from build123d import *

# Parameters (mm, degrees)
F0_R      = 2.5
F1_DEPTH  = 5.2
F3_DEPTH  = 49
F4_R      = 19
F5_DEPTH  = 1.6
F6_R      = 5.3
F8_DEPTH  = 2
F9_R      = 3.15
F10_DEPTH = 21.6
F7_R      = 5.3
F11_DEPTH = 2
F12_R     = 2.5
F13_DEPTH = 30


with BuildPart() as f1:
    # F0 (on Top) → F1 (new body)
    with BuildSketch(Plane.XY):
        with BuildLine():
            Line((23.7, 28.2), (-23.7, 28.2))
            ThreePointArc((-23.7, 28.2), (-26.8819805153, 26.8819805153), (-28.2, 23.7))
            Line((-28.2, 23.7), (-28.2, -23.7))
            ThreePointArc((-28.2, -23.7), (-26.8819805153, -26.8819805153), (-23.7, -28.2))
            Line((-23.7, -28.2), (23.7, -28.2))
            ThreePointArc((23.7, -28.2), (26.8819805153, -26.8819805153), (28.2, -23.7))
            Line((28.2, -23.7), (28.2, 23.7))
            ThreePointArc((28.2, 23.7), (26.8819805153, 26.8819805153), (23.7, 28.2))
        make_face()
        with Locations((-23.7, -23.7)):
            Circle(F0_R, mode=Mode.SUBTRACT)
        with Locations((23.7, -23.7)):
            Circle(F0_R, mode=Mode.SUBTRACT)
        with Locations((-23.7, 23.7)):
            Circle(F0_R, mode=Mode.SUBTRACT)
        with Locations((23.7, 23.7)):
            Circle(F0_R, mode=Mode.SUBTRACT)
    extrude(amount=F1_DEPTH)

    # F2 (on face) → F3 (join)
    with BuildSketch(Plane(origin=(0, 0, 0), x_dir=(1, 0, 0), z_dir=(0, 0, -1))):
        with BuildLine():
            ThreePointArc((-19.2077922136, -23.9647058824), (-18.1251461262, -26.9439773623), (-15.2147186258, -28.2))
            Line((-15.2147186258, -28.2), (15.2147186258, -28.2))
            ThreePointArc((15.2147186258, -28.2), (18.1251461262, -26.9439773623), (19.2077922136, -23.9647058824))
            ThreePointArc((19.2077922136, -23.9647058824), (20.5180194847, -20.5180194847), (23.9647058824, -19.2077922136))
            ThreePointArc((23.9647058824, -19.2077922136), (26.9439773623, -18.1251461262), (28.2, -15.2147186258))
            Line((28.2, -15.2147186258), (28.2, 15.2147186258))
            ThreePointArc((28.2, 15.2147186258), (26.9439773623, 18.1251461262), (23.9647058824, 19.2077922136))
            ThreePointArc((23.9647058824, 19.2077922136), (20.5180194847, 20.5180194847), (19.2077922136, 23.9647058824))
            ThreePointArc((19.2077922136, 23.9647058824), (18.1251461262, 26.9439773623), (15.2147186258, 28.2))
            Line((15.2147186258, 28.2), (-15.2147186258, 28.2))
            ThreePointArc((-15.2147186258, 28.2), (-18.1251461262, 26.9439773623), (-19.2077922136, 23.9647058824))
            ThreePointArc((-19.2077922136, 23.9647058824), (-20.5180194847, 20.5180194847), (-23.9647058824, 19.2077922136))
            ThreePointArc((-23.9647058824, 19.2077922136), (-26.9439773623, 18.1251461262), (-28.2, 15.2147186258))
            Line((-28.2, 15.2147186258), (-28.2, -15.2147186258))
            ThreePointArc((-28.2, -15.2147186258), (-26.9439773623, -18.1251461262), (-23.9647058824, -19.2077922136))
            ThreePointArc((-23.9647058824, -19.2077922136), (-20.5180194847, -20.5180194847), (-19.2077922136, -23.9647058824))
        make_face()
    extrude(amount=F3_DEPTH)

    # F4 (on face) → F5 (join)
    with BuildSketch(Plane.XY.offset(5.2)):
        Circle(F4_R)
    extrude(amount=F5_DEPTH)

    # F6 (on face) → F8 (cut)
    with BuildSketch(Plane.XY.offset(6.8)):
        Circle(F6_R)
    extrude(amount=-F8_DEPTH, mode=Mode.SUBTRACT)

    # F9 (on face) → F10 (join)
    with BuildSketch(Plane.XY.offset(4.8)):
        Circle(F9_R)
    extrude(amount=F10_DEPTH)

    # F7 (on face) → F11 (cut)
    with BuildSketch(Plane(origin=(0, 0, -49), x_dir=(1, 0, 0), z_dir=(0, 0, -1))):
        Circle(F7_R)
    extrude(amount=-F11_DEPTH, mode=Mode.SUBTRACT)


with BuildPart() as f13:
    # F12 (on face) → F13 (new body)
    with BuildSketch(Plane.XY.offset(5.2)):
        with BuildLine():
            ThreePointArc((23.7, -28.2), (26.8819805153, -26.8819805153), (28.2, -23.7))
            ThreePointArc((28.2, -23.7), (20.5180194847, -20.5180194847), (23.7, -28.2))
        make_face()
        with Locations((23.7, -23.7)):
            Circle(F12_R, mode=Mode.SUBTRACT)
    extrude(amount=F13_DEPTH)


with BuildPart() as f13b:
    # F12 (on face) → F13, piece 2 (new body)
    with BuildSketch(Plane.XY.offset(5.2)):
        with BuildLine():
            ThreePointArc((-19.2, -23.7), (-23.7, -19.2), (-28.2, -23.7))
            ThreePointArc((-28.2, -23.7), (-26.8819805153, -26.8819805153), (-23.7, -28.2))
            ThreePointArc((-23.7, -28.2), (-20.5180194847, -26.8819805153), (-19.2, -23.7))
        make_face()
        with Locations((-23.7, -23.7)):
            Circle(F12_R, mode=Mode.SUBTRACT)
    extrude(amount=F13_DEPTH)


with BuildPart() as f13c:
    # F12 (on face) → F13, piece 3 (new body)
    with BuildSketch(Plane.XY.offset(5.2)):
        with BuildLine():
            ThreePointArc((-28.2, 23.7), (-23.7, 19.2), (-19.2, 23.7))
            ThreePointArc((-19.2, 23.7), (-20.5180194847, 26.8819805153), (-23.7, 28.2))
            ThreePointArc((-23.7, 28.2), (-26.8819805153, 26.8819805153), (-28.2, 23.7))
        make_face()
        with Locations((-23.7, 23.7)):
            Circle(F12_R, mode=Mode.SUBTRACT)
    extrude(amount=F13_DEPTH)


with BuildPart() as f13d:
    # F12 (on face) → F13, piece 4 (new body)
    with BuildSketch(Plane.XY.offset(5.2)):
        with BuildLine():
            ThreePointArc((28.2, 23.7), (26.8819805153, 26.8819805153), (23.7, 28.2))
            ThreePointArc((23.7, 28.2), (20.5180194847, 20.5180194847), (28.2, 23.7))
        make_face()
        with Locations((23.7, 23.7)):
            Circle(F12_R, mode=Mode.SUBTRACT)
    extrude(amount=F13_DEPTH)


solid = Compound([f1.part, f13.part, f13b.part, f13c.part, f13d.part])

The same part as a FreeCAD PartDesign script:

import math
import FreeCAD as App
import Part
import Sketcher
Q = App.Units.Quantity

doc = App.newDocument("Part")
body = doc.addObject("PartDesign::Body", "Body")

# Sketch on XY plane
sketch1 = body.newObject("Sketcher::SketchObject", "Sketch")
sketch1.AttachmentSupport = (doc.getObject("XY_Plane"), [""])
sketch1.MapMode = "FlatFace"
sketch1.addGeometry([
    Part.LineSegment(App.Vector(23.7, 28.2, 0), App.Vector(-23.7, 28.2, 0)),  # 0
    Part.ArcOfCircle(Part.Circle(App.Vector(-23.7, 23.7, 0), App.Vector(0, 0, 1), 4.5), math.radians(90), math.radians(180)),  # 1
    Part.LineSegment(App.Vector(-28.2, 23.7, 0), App.Vector(-28.2, -23.7, 0)),  # 2
    Part.ArcOfCircle(Part.Circle(App.Vector(-23.7, -23.7, 0), App.Vector(0, 0, 1), 4.5), math.radians(180), math.radians(270)),  # 3
    Part.LineSegment(App.Vector(-23.7, -28.2, 0), App.Vector(23.7, -28.2, 0)),  # 4
    Part.ArcOfCircle(Part.Circle(App.Vector(23.7, -23.7, 0), App.Vector(0, 0, 1), 4.5), math.radians(-90), math.radians(0)),  # 5
    Part.LineSegment(App.Vector(28.2, -23.7, 0), App.Vector(28.2, 23.7, 0)),  # 6
    Part.ArcOfCircle(Part.Circle(App.Vector(23.7, 23.7, 0), App.Vector(0, 0, 1), 4.5), math.radians(0), math.radians(90)),  # 7
    Part.Circle(App.Vector(-23.7, -23.7, 0), App.Vector(0, 0, 1), 2.5),  # 8
    Part.Circle(App.Vector(23.7, -23.7, 0), App.Vector(0, 0, 1), 2.5),  # 9
    Part.Circle(App.Vector(-23.7, 23.7, 0), App.Vector(0, 0, 1), 2.5),  # 10
    Part.Circle(App.Vector(23.7, 23.7, 0), App.Vector(0, 0, 1), 2.5),  # 11
], False)
sketch1.addConstraint([
    Sketcher.Constraint("Tangent", 0, 2, 1, 1),
    Sketcher.Constraint("Tangent", 1, 2, 2, 1),
    Sketcher.Constraint("Tangent", 2, 2, 3, 1),
    Sketcher.Constraint("Tangent", 3, 2, 4, 1),
    Sketcher.Constraint("Tangent", 4, 2, 5, 1),
    Sketcher.Constraint("Tangent", 5, 2, 6, 1),
    Sketcher.Constraint("Tangent", 6, 2, 7, 1),
    Sketcher.Constraint("Tangent", 7, 2, 0, 1),
    Sketcher.Constraint("Horizontal", 0),
    Sketcher.Constraint("Vertical", 2),
    Sketcher.Constraint("Horizontal", 4),
    Sketcher.Constraint("Vertical", 6),
    Sketcher.Constraint("Coincident", 8, 3, 3, 3),
    Sketcher.Constraint("Coincident", 9, 3, 5, 3),
    Sketcher.Constraint("Coincident", 10, 3, 1, 3),
    Sketcher.Constraint("Coincident", 11, 3, 7, 3),
    Sketcher.Constraint("Equal", 1, 3),
    Sketcher.Constraint("Equal", 3, 5),
    Sketcher.Constraint("Equal", 5, 7),
    Sketcher.Constraint("Equal", 8, 9),
    Sketcher.Constraint("Equal", 9, 10),
    Sketcher.Constraint("Equal", 10, 11),
    Sketcher.Constraint("Symmetric", 1, 3, 5, 3, -1, 1),
    Sketcher.Constraint("Equal", 4, 2),
    Sketcher.Constraint("Diameter", 8, Q("5 mm")),
    Sketcher.Constraint("Radius", 1, Q("4.5 mm")),
    Sketcher.Constraint("DistanceX", 0, 2, 0, 1, Q("47.4 mm")),
])
pad1 = body.newObject("PartDesign::Pad", "Pad")
pad1.Profile = sketch1
pad1.Length = 5.2

# Sketch on XY plane
sketch2 = body.newObject("Sketcher::SketchObject", "Sketch001")
sketch2.AttachmentSupport = (doc.getObject("XY_Plane"), [""])
sketch2.MapMode = "FlatFace"
sketch2.addGeometry([
    Part.ArcOfCircle(Part.Circle(App.Vector(-15.214719, 24.2, 0), App.Vector(0, 0, 1), 4), math.radians(90), math.radians(183.372287)),  # 0
    Part.LineSegment(App.Vector(-15.214719, 28.2, 0), App.Vector(15.214719, 28.2, 0)),  # 1
    Part.ArcOfCircle(Part.Circle(App.Vector(15.214719, 24.2, 0), App.Vector(0, 0, 1), 4), math.radians(-3.372287), math.radians(90)),  # 2
    Part.ArcOfCircle(Part.Circle(App.Vector(23.7, 23.7, 0), App.Vector(0, 0, 1), 4.5), math.radians(176.627713), math.radians(273.372287)),  # 3
    Part.ArcOfCircle(Part.Circle(App.Vector(24.2, 15.214719, 0), App.Vector(0, 0, 1), 4), math.radians(0), math.radians(93.372287)),  # 4
    Part.LineSegment(App.Vector(28.2, 15.214719, 0), App.Vector(28.2, -15.214719, 0)),  # 5
    Part.ArcOfCircle(Part.Circle(App.Vector(24.2, -15.214719, 0), App.Vector(0, 0, 1), 4), math.radians(-93.372287), math.radians(0)),  # 6
    Part.ArcOfCircle(Part.Circle(App.Vector(23.7, -23.7, 0), App.Vector(0, 0, 1), 4.5), math.radians(86.627713), math.radians(183.372287)),  # 7
    Part.ArcOfCircle(Part.Circle(App.Vector(15.214719, -24.2, 0), App.Vector(0, 0, 1), 4), math.radians(-90), math.radians(3.372287)),  # 8
    Part.LineSegment(App.Vector(15.214719, -28.2, 0), App.Vector(-15.214719, -28.2, 0)),  # 9
    Part.ArcOfCircle(Part.Circle(App.Vector(-15.214719, -24.2, 0), App.Vector(0, 0, 1), 4), math.radians(176.627713), math.radians(270)),  # 10
    Part.ArcOfCircle(Part.Circle(App.Vector(-23.7, -23.7, 0), App.Vector(0, 0, 1), 4.5), math.radians(-3.372287), math.radians(93.372287)),  # 11
    Part.ArcOfCircle(Part.Circle(App.Vector(-24.2, -15.214719, 0), App.Vector(0, 0, 1), 4), math.radians(180), math.radians(273.372287)),  # 12
    Part.LineSegment(App.Vector(-28.2, -15.214719, 0), App.Vector(-28.2, 15.214719, 0)),  # 13
    Part.ArcOfCircle(Part.Circle(App.Vector(-24.2, 15.214719, 0), App.Vector(0, 0, 1), 4), math.radians(86.627713), math.radians(180)),  # 14
    Part.ArcOfCircle(Part.Circle(App.Vector(-23.7, 23.7, 0), App.Vector(0, 0, 1), 4.5), math.radians(-93.372287), math.radians(3.372287)),  # 15
], False)
sketch2.addConstraint([
    Sketcher.Constraint("Tangent", 0, 1, 1, 1),
    Sketcher.Constraint("Tangent", 1, 2, 2, 2),
    Sketcher.Constraint("Tangent", 2, 1, 3, 1),
    Sketcher.Constraint("Tangent", 3, 2, 4, 2),
    Sketcher.Constraint("Tangent", 4, 1, 5, 1),
    Sketcher.Constraint("Tangent", 5, 2, 6, 2),
    Sketcher.Constraint("Tangent", 6, 1, 7, 1),
    Sketcher.Constraint("Tangent", 7, 2, 8, 2),
    Sketcher.Constraint("Tangent", 8, 1, 9, 1),
    Sketcher.Constraint("Tangent", 9, 2, 10, 2),
    Sketcher.Constraint("Tangent", 10, 1, 11, 1),
    Sketcher.Constraint("Tangent", 11, 2, 12, 2),
    Sketcher.Constraint("Tangent", 12, 1, 13, 1),
    Sketcher.Constraint("Tangent", 13, 2, 14, 2),
    Sketcher.Constraint("Tangent", 14, 1, 15, 1),
    Sketcher.Constraint("Tangent", 15, 2, 0, 2),
    Sketcher.Constraint("Horizontal", 1),
    Sketcher.Constraint("Vertical", 5),
    Sketcher.Constraint("Horizontal", 9),
    Sketcher.Constraint("Vertical", 13),
    Sketcher.Constraint("Equal", 0, 2),
    Sketcher.Constraint("Equal", 2, 4),
    Sketcher.Constraint("Equal", 4, 6),
    Sketcher.Constraint("Equal", 3, 7),
    Sketcher.Constraint("Equal", 6, 8),
    Sketcher.Constraint("Equal", 8, 10),
    Sketcher.Constraint("Equal", 7, 11),
    Sketcher.Constraint("Equal", 10, 12),
    Sketcher.Constraint("Equal", 12, 14),
    Sketcher.Constraint("Equal", 11, 15),
    Sketcher.Constraint("Symmetric", 0, 3, 8, 3, -1, 1),
    Sketcher.Constraint("Symmetric", 3, 3, 11, 3, -1, 1),
    Sketcher.Constraint("Symmetric", 6, 3, 14, 3, -1, 1),
    Sketcher.Constraint("Symmetric", 7, 3, 11, 3, -2),
    Sketcher.Constraint("Equal", 9, 5),
    Sketcher.Constraint("Radius", 0, Q("4 mm")),
    Sketcher.Constraint("Radius", 3, Q("4.5 mm")),
    Sketcher.Constraint("DistanceY", -1, 1, 0, 3, Q("24.2 mm")),
    Sketcher.Constraint("DistanceX", -1, 1, 3, 3, Q("23.7 mm")),
    Sketcher.Constraint("DistanceY", -1, 1, 3, 3, Q("23.7 mm")),
])
pad2 = body.newObject("PartDesign::Pad", "Pad001")
pad2.Profile = sketch2
pad2.Length = 49
pad2.Reversed = True

# Sketch on XY plane
sketch3 = body.newObject("Sketcher::SketchObject", "Sketch002")
sketch3.AttachmentSupport = (doc.getObject("XY_Plane"), [""])
sketch3.MapMode = "FlatFace"
sketch3.AttachmentOffset = App.Placement(App.Vector(0, 0, 5.2), App.Rotation())
sketch3.addGeometry(Part.Circle(App.Vector(0, 0, 0), App.Vector(0, 0, 1), 19), False)
sketch3.addConstraint([
    Sketcher.Constraint("Coincident", 0, 3, -1, 1),
    Sketcher.Constraint("Diameter", 0, Q("38 mm")),
])
pad3 = body.newObject("PartDesign::Pad", "Pad002")
pad3.Profile = sketch3
pad3.Length = 1.6

# Sketch on XY plane
sketch4 = body.newObject("Sketcher::SketchObject", "Sketch003")
sketch4.AttachmentSupport = (doc.getObject("XY_Plane"), [""])
sketch4.MapMode = "FlatFace"
sketch4.AttachmentOffset = App.Placement(App.Vector(0, 0, 6.8), App.Rotation())
sketch4.addGeometry(Part.Circle(App.Vector(0, 0, 0), App.Vector(0, 0, 1), 5.3), False)
sketch4.addConstraint([
    Sketcher.Constraint("Coincident", 0, 3, -1, 1),
    Sketcher.Constraint("Diameter", 0, Q("10.6 mm")),
])
pocket1 = body.newObject("PartDesign::Pocket", "Pocket")
pocket1.Profile = sketch4
pocket1.Length = 2

# Sketch on XY plane
sketch5 = body.newObject("Sketcher::SketchObject", "Sketch004")
sketch5.AttachmentSupport = (doc.getObject("XY_Plane"), [""])
sketch5.MapMode = "FlatFace"
sketch5.AttachmentOffset = App.Placement(App.Vector(0, 0, 4.8), App.Rotation())
sketch5.addGeometry(Part.Circle(App.Vector(0, 0, 0), App.Vector(0, 0, 1), 3.15), False)
sketch5.addConstraint([
    Sketcher.Constraint("Coincident", 0, 3, -1, 1),
    Sketcher.Constraint("Diameter", 0, Q("6.3 mm")),
])
pad4 = body.newObject("PartDesign::Pad", "Pad003")
pad4.Profile = sketch5
pad4.Length = 21.6

# Sketch on XY plane
sketch6 = body.newObject("Sketcher::SketchObject", "Sketch005")
sketch6.AttachmentSupport = (doc.getObject("XY_Plane"), [""])
sketch6.MapMode = "FlatFace"
sketch6.AttachmentOffset = App.Placement(App.Vector(0, 0, -49), App.Rotation())
sketch6.addGeometry(Part.Circle(App.Vector(0, 0, 0), App.Vector(0, 0, 1), 5.3), False)
sketch6.addConstraint([
    Sketcher.Constraint("Coincident", 0, 3, -1, 1),
    Sketcher.Constraint("Diameter", 0, Q("10.6 mm")),
])
pocket2 = body.newObject("PartDesign::Pocket", "Pocket001")
pocket2.Profile = sketch6
pocket2.Length = 2
pocket2.Reversed = True
body2 = doc.addObject("PartDesign::Body", "Body001")

# Sketch on XY plane
sketch7 = body2.newObject("Sketcher::SketchObject", "Sketch006")
sketch7.AttachmentSupport = (doc.getObject("XY_Plane001"), [""])
sketch7.MapMode = "FlatFace"
sketch7.AttachmentOffset = App.Placement(App.Vector(0, 0, 5.2), App.Rotation())
sketch7.addGeometry([
    Part.ArcOfCircle(Part.Circle(App.Vector(23.7, -23.7, 0), App.Vector(0, 0, 1), 4.5), math.radians(-90), math.radians(0)),
    Part.ArcOfCircle(Part.Circle(App.Vector(23.7, -23.7, 0), App.Vector(0, 0, 1), 4.5), math.radians(0), math.radians(270)),
    Part.Circle(App.Vector(23.7, -23.7, 0), App.Vector(0, 0, 1), 2.5),
], False)
sketch7.addConstraint([
    Sketcher.Constraint("Tangent", 0, 1, 1, 2),
    Sketcher.Constraint("Coincident", 1, 1, 0, 2),
    Sketcher.Constraint("Coincident", 2, 3, 0, 3),
    Sketcher.Constraint("Horizontal", 2, 3, 1, 1),
    Sketcher.Constraint("Vertical", 2, 3, 0, 1),
    Sketcher.Constraint("Diameter", 2, Q("5 mm")),
    Sketcher.Constraint("Radius", 0, Q("4.5 mm")),
    Sketcher.Constraint("DistanceX", -1, 1, 0, 3, Q("23.7 mm")),
    Sketcher.Constraint("DistanceY", 0, 3, -1, 1, Q("23.7 mm")),
])
pad5 = body2.newObject("PartDesign::Pad", "Pad004")
pad5.Profile = sketch7
pad5.Length = 30
body3 = doc.addObject("PartDesign::Body", "Body002")

# Sketch on XY plane
sketch8 = body3.newObject("Sketcher::SketchObject", "Sketch007")
sketch8.AttachmentSupport = (doc.getObject("XY_Plane002"), [""])
sketch8.MapMode = "FlatFace"
sketch8.AttachmentOffset = App.Placement(App.Vector(0, 0, 5.2), App.Rotation())
sketch8.addGeometry([
    Part.ArcOfCircle(Part.Circle(App.Vector(-23.7, -23.7, 0), App.Vector(0, 0, 1), 4.5), math.radians(0), math.radians(180)),
    Part.ArcOfCircle(Part.Circle(App.Vector(-23.7, -23.7, 0), App.Vector(0, 0, 1), 4.5), math.radians(180), math.radians(270)),
    Part.ArcOfCircle(Part.Circle(App.Vector(-23.7, -23.7, 0), App.Vector(0, 0, 1), 4.5), math.radians(-90), math.radians(0)),
    Part.Circle(App.Vector(-23.7, -23.7, 0), App.Vector(0, 0, 1), 2.5),
], False)
sketch8.addConstraint([
    Sketcher.Constraint("Tangent", 0, 2, 1, 1),
    Sketcher.Constraint("Tangent", 1, 2, 2, 1),
    Sketcher.Constraint("Tangent", 2, 2, 0, 1),
    Sketcher.Constraint("Coincident", 3, 3, 0, 3),
    Sketcher.Constraint("Horizontal", 3, 3, 0, 2),
    Sketcher.Constraint("Horizontal", 0, 2, 2, 2),
    Sketcher.Constraint("Vertical", 3, 3, 1, 2),
    Sketcher.Constraint("Diameter", 3, Q("5 mm")),
    Sketcher.Constraint("Radius", 0, Q("4.5 mm")),
    Sketcher.Constraint("DistanceX", 0, 3, -1, 1, Q("23.7 mm")),
    Sketcher.Constraint("DistanceY", 0, 3, -1, 1, Q("23.7 mm")),
])
pad6 = body3.newObject("PartDesign::Pad", "Pad005")
pad6.Profile = sketch8
pad6.Length = 30
body4 = doc.addObject("PartDesign::Body", "Body003")

# Sketch on XY plane
sketch9 = body4.newObject("Sketcher::SketchObject", "Sketch008")
sketch9.AttachmentSupport = (doc.getObject("XY_Plane003"), [""])
sketch9.MapMode = "FlatFace"
sketch9.AttachmentOffset = App.Placement(App.Vector(0, 0, 5.2), App.Rotation())
sketch9.addGeometry([
    Part.ArcOfCircle(Part.Circle(App.Vector(-23.7, 23.7, 0), App.Vector(0, 0, 1), 4.5), math.radians(180), math.radians(360)),
    Part.ArcOfCircle(Part.Circle(App.Vector(-23.7, 23.7, 0), App.Vector(0, 0, 1), 4.5), math.radians(0), math.radians(90)),
    Part.ArcOfCircle(Part.Circle(App.Vector(-23.7, 23.7, 0), App.Vector(0, 0, 1), 4.5), math.radians(90), math.radians(180)),
    Part.Circle(App.Vector(-23.7, 23.7, 0), App.Vector(0, 0, 1), 2.5),
], False)
sketch9.addConstraint([
    Sketcher.Constraint("Tangent", 0, 2, 1, 1),
    Sketcher.Constraint("Tangent", 1, 2, 2, 1),
    Sketcher.Constraint("Tangent", 2, 2, 0, 1),
    Sketcher.Constraint("Coincident", 3, 3, 0, 3),
    Sketcher.Constraint("Horizontal", 3, 3, 0, 2),
    Sketcher.Constraint("Horizontal", 0, 2, 2, 2),
    Sketcher.Constraint("Vertical", 3, 3, 1, 2),
    Sketcher.Constraint("Diameter", 3, Q("5 mm")),
    Sketcher.Constraint("Radius", 0, Q("4.5 mm")),
    Sketcher.Constraint("DistanceX", 0, 3, -1, 1, Q("23.7 mm")),
    Sketcher.Constraint("DistanceY", -1, 1, 0, 3, Q("23.7 mm")),
])
pad7 = body4.newObject("PartDesign::Pad", "Pad006")
pad7.Profile = sketch9
pad7.Length = 30
body5 = doc.addObject("PartDesign::Body", "Body004")

# Sketch on XY plane
sketch10 = body5.newObject("Sketcher::SketchObject", "Sketch009")
sketch10.AttachmentSupport = (doc.getObject("XY_Plane004"), [""])
sketch10.MapMode = "FlatFace"
sketch10.AttachmentOffset = App.Placement(App.Vector(0, 0, 5.2), App.Rotation())
sketch10.addGeometry([
    Part.ArcOfCircle(Part.Circle(App.Vector(23.7, 23.7, 0), App.Vector(0, 0, 1), 4.5), math.radians(0), math.radians(90)),
    Part.ArcOfCircle(Part.Circle(App.Vector(23.7, 23.7, 0), App.Vector(0, 0, 1), 4.5), math.radians(90), math.radians(360)),
    Part.Circle(App.Vector(23.7, 23.7, 0), App.Vector(0, 0, 1), 2.5),
], False)
sketch10.addConstraint([
    Sketcher.Constraint("Tangent", 0, 1, 1, 2),
    Sketcher.Constraint("Coincident", 1, 1, 0, 2),
    Sketcher.Constraint("Coincident", 2, 3, 0, 3),
    Sketcher.Constraint("Horizontal", 2, 3, 0, 1),
    Sketcher.Constraint("Vertical", 2, 3, 1, 1),
    Sketcher.Constraint("Diameter", 2, Q("5 mm")),
    Sketcher.Constraint("Radius", 0, Q("4.5 mm")),
    Sketcher.Constraint("DistanceX", -1, 1, 0, 3, Q("23.7 mm")),
    Sketcher.Constraint("DistanceY", -1, 1, 0, 3, Q("23.7 mm")),
])
pad8 = body5.newObject("PartDesign::Pad", "Pad007")
pad8.Profile = sketch10
pad8.Length = 30

doc.recompute()
